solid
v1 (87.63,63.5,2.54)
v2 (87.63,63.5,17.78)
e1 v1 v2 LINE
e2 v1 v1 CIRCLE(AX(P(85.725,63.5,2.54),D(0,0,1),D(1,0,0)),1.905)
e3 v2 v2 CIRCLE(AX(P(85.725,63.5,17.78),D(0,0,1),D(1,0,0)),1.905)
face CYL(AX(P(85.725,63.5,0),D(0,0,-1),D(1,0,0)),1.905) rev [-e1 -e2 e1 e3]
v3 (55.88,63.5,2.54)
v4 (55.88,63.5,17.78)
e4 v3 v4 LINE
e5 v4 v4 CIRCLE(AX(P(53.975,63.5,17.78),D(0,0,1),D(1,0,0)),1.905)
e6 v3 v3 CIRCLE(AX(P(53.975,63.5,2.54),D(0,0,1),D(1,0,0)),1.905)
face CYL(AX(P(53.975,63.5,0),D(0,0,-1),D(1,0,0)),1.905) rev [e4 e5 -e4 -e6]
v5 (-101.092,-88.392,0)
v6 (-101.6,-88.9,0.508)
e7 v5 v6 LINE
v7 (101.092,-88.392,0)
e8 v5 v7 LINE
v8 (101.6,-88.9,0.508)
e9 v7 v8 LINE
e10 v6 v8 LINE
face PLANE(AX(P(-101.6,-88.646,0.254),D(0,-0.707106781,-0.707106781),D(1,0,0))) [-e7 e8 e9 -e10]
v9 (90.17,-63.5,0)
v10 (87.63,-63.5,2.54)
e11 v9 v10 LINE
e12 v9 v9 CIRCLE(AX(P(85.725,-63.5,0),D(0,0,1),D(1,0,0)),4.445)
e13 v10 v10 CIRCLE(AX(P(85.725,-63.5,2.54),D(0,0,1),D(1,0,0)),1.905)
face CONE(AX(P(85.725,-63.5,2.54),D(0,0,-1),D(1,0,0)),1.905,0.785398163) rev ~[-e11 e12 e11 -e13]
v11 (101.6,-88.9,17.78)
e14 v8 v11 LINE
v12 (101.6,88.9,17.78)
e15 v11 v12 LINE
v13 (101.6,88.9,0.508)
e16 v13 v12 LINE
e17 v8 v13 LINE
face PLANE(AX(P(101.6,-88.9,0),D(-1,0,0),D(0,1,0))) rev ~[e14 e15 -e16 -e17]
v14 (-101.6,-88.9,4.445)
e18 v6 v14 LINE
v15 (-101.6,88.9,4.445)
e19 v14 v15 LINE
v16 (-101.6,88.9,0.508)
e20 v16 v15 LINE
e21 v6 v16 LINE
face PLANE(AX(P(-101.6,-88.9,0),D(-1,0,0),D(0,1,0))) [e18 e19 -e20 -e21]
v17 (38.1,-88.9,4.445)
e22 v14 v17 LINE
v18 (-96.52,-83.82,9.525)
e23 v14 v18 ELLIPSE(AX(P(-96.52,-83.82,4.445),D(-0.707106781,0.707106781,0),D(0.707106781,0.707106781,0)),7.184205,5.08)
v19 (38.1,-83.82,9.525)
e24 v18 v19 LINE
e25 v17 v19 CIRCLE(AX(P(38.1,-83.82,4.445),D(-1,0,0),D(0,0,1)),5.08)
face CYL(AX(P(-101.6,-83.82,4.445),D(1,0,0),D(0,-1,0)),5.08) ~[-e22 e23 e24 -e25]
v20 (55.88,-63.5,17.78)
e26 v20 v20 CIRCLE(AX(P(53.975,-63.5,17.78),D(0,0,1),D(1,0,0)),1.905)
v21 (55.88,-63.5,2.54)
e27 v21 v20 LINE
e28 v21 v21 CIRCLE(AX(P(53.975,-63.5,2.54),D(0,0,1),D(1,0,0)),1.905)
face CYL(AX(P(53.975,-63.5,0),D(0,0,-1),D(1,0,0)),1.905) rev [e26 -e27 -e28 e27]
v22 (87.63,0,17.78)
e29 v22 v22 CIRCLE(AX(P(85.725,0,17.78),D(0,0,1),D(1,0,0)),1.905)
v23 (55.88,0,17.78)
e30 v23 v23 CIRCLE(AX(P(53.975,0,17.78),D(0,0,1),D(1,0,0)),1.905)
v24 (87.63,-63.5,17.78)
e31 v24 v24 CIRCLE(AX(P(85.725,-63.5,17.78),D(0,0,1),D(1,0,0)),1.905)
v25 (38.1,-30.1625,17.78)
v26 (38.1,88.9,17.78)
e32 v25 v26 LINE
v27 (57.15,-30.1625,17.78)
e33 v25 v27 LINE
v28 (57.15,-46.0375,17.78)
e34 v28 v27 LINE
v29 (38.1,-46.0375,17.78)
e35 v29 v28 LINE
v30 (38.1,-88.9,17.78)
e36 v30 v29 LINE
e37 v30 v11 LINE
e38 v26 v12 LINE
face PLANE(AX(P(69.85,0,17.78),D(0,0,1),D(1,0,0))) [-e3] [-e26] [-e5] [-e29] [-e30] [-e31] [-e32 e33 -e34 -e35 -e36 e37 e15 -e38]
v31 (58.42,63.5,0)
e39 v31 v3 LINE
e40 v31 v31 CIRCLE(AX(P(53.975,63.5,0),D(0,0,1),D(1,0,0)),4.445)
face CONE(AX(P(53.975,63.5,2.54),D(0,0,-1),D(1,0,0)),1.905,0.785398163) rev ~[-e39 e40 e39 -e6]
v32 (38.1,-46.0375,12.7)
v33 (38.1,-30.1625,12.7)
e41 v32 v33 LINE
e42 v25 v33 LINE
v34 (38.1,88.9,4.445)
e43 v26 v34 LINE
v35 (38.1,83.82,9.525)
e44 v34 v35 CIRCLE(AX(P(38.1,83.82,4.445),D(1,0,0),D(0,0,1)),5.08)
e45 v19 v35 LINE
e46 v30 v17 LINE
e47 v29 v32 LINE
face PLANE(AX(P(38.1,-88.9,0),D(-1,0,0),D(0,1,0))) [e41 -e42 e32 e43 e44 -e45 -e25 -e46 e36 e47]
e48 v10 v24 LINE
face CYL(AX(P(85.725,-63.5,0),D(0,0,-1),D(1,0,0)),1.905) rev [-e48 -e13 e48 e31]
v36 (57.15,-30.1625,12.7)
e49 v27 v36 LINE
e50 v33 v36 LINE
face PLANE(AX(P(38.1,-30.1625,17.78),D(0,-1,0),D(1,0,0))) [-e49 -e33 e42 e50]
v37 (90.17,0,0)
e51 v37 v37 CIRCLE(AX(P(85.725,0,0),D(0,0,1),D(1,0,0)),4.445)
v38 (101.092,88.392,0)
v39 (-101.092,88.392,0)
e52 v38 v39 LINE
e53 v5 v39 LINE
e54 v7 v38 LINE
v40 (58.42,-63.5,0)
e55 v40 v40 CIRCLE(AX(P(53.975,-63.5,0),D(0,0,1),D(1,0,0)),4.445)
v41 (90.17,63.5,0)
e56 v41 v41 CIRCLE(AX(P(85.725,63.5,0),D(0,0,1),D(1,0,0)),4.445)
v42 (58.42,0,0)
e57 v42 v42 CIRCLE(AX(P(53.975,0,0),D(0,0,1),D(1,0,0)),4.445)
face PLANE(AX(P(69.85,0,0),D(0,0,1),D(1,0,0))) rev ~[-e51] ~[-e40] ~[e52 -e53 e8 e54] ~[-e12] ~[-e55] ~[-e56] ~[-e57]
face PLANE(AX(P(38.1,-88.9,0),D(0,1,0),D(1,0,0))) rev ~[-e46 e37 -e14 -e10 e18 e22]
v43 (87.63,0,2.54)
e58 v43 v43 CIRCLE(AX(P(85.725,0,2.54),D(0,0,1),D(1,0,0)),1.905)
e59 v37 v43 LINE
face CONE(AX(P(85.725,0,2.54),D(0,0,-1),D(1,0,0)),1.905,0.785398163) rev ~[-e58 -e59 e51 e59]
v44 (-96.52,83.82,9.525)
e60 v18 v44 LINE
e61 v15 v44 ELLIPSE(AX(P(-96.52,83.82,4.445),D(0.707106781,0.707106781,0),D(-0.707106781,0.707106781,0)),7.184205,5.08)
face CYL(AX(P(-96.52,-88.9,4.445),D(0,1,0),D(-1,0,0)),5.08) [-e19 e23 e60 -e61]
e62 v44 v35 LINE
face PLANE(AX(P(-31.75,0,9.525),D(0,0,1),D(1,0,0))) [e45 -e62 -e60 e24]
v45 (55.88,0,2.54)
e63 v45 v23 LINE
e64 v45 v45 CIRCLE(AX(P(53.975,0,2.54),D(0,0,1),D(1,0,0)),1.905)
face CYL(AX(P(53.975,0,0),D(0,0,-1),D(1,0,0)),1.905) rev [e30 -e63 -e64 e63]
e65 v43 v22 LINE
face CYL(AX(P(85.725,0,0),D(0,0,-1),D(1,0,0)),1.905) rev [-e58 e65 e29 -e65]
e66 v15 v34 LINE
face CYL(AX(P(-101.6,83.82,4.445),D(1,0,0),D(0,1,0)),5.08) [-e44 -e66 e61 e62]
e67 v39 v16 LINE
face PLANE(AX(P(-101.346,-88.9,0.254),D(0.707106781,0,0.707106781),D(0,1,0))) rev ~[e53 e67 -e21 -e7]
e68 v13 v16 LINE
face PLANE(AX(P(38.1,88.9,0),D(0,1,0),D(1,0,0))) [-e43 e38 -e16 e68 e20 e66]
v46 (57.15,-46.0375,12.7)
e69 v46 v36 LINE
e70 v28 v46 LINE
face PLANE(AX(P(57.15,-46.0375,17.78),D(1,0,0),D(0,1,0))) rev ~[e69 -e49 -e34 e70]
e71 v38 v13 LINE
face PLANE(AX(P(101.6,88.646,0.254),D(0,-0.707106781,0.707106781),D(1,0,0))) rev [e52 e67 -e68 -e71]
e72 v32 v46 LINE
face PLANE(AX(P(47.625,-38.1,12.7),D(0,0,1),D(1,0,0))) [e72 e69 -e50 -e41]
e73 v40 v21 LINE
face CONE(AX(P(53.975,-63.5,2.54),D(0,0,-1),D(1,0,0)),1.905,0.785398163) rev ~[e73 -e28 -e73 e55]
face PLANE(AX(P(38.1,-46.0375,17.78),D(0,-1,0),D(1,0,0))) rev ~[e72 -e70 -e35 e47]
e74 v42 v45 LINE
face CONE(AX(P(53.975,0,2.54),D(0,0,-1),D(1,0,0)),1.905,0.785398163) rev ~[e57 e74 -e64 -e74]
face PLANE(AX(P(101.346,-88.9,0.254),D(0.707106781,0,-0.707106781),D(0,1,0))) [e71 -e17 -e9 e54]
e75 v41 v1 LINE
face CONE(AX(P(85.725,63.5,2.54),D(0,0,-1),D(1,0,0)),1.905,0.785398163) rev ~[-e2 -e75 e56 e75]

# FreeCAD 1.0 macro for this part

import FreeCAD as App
import Part
import Sketcher

V = App.Vector
Q = App.Units.Quantity


def edges_at(feature, points):
    """Names of the edges that pass closest to the given points."""
    edges = feature.Shape.Edges
    near = lambda p: min(range(len(edges)), key=lambda i: edges[i].distToShape(Part.Vertex(*p))[0])
    return sorted({f"Edge{near(p) + 1}" for p in points})


def add_polygon(sketch, points):
    """Adds a closed chain of lines whose ends are joined by coincident constraints."""
    first, n = sketch.GeometryCount, len(points)
    for a, b in zip(points, points[1:] + points[:1]):
        sketch.addGeometry(Part.LineSegment(App.Vector(*a, 0), App.Vector(*b, 0)), False)
    for i in range(n):
        sketch.addConstraint(Sketcher.Constraint("Coincident", first + i, 2, first + (i + 1) % n, 1))

doc = App.newDocument("Part")
params = doc.addObject("Spreadsheet::Sheet", "Params")
for row, (alias, value) in enumerate([
    ("sketch1_height", "7 in"),
    ("sketch1_width", "5.5 in"),
    ("pad1_length", "0.375 in"),
    ("sketch2_diameter", "0.15 in"),
    ("sketch2_height", "7 in"),
    ("sketch2_width", "2.5 in"),
    ("pad2_length", "0.7 in"),
    ("chamfer_size", "0.1 in"),
    ("chamfer2_size", "0.02 in"),
    ("fillet_radius", "0.2 in"),
    ("sketch3_width", "0.75 in"),
    ("sketch3_height", "0.625 in"),
    ("pocket1_length", "0.2 in"),
], start=1):
    params.set(f"A{row}", alias)
    params.set(f"B{row}", "=" + value)
    params.setAlias(f"B{row}", alias)

body = doc.addObject("PartDesign::Body", "Body")

sketch1 = body.newObject("Sketcher::SketchObject", "Sketch")
sketch1.AttachmentSupport = (doc.getObject("XY_Plane"), [""])
sketch1.MapMode = "FlatFace"
add_polygon(sketch1, [(-102, 89), (-102, -89), (38, -89), (38, 89)])
sketch1.addConstraint([
    Sketcher.Constraint("Vertical", 0),
    Sketcher.Constraint("Horizontal", 1),
    Sketcher.Constraint("Vertical", 2),
    Sketcher.Constraint("Horizontal", 3),
    Sketcher.Constraint("DistanceY", 0, 2, 0, 1, Q("7 in")),
    Sketcher.Constraint("DistanceX", 1, 1, 1, 2, Q("5.5 in")),
    Sketcher.Constraint("DistanceX", 0, 2, -1, 1, Q("4 in")),
    Sketcher.Constraint("DistanceY", 0, 2, -1, 1, Q("3.5 in")),
])
sketch1.setExpression("Constraints[8]", "Params.sketch1_height")
sketch1.setExpression("Constraints[9]", "Params.sketch1_width")
pad1 = body.newObject("PartDesign::Pad", "Pad")
pad1.Profile = sketch1
pad1.setExpression("Length", "Params.pad1_length")

sketch2 = body.newObject("Sketcher::SketchObject", "Sketch001")
sketch2.AttachmentSupport = (doc.getObject("XY_Plane"), [""])
sketch2.MapMode = "FlatFace"
add_polygon(sketch2, [(38.1, 88.9), (38.1, -88.9), (101.6, -88.9), (101.6, 88.9)])
sketch2.addGeometry(Part.Circle(V(54, -63.5, 0), V(0, 0, 1), 1.9), False)
sketch2.addGeometry(Part.Circle(V(85.7, -63.5, 0), V(0, 0, 1), 1.9), False)
sketch2.addGeometry(Part.Circle(V(54, 0, 0), V(0, 0, 1), 1.9), False)
sketch2.addGeometry(Part.Circle(V(54, 63.5, 0), V(0, 0, 1), 1.9), False)
sketch2.addGeometry(Part.Circle(V(85.7, 0, 0), V(0, 0, 1), 1.9), False)
sketch2.addGeometry(Part.Circle(V(85.7, 63.5, 0), V(0, 0, 1), 1.9), False)
sketch2.addConstraint([
    Sketcher.Constraint("Vertical", 0),
    Sketcher.Constraint("Horizontal", 1),
    Sketcher.Constraint("Vertical", 2),
    Sketcher.Constraint("Horizontal", 3),
    Sketcher.Constraint("Equal", 4, 5),
    Sketcher.Constraint("Equal", 5, 6),
    Sketcher.Constraint("Equal", 6, 7),
    Sketcher.Constraint("Equal", 7, 8),
    Sketcher.Constraint("Equal", 8, 9),
    Sketcher.Constraint("Symmetric", 4, 3, 7, 3, -1),
    Sketcher.Constraint("Symmetric", 5, 3, 9, 3, -1),
    Sketcher.Constraint("PointOnObject", 6, 3, -1),
    Sketcher.Constraint("PointOnObject", 8, 3, -1),
    Sketcher.Constraint("Horizontal", 4, 3, 5, 3),
    Sketcher.Constraint("Vertical", 4, 3, 6, 3),
    Sketcher.Constraint("Vertical", 5, 3, 8, 3),
    Sketcher.Constraint("Diameter", 4, Q("0.15 in")),
    Sketcher.Constraint("DistanceY", 0, 2, 0, 1, Q("7 in")),
    Sketcher.Constraint("DistanceX", 1, 1, 1, 2, Q("2.5 in")),
    Sketcher.Constraint("DistanceX", -1, 1, 1, 2, Q("4 in")),
    Sketcher.Constraint("DistanceY", 4, 3, 7, 3, Q("5 in")),
    Sketcher.Constraint("DistanceY", 0, 2, 4, 3, Q("1 in")),
    Sketcher.Constraint("DistanceX", 4, 3, 5, 3, Q("1.25 in")),
    Sketcher.Constraint("DistanceX", -1, 1, 4, 3, Q("2.125 in")),
])
sketch2.setExpression("Constraints[20]", "Params.sketch2_diameter")
sketch2.setExpression("Constraints[21]", "Params.sketch2_height")
sketch2.setExpression("Constraints[22]", "Params.sketch2_width")
pad2 = body.newObject("PartDesign::Pad", "Pad001")
pad2.Profile = sketch2
pad2.setExpression("Length", "Params.pad2_length")
doc.recompute()

chamfer = body.newObject("PartDesign::Chamfer", "Chamfer")
chamfer.Base = (pad2, edges_at(pad2, [
    (52.07, -63.5, 0),
    (83.82, -63.5, 0),
    (52.07, 0, 0),
    (83.82, 0, 0),
    (52.07, 63.5, 0),
    (83.82, 63.5, 0),
]))
chamfer.setExpression("Size", "Params.chamfer_size")
doc.recompute()

chamfer2 = body.newObject("PartDesign::Chamfer", "Chamfer001")
chamfer2.Base = (chamfer, edges_at(chamfer, [
    (0, -88.9, 0),
    (101.6, 0, 0),
    (0, 88.9, 0),
    (-101.6, 0, 0),
]))
chamfer2.setExpression("Size", "Params.chamfer2_size")
doc.recompute()

fillet = body.newObject("PartDesign::Fillet", "Fillet")
fillet.Base = (chamfer2, edges_at(chamfer2, [(-31.75, -88.9, 9.525), (-101.6, 0, 9.525), (-31.75, 88.9, 9.525)]))
fillet.setExpression("Radius", "Params.fillet_radius")

sketch3 = body.newObject("Sketcher::SketchObject", "Sketch002")
sketch3.AttachmentSupport = (doc.getObject("XY_Plane"), [""])
sketch3.MapMode = "FlatFace"
sketch3.AttachmentOffset = App.Placement(V(0, 0, 0.7 * 25.4), App.Rotation())
add_polygon(sketch3, [(38, -30), (38, -46), (57, -46), (57, -30)])
sketch3.addConstraint([
    Sketcher.Constraint("Vertical", 0),
    Sketcher.Constraint("Horizontal", 1),
    Sketcher.Constraint("Vertical", 2),
    Sketcher.Constraint("Horizontal", 3),
    Sketcher.Constraint("DistanceX", 1, 1, 1, 2, Q("0.75 in")),
    Sketcher.Constraint("DistanceX", -1, 1, 0, 2, Q("1.5 in")),
    Sketcher.Constraint("DistanceY", 0, 2, 0, 1, Q("0.625 in")),
    Sketcher.Constraint("DistanceY", 0, 2, -1, 1, Q("1.8125 in")),
])
sketch3.setExpression("Constraints[8]", "Params.sketch3_width")
sketch3.setExpression("Constraints[10]", "Params.sketch3_height")
pocket1 = body.newObject("PartDesign::Pocket", "Pocket")
pocket1.Profile = sketch3
pocket1.setExpression("Length", "Params.pocket1_length")

doc.recompute()
